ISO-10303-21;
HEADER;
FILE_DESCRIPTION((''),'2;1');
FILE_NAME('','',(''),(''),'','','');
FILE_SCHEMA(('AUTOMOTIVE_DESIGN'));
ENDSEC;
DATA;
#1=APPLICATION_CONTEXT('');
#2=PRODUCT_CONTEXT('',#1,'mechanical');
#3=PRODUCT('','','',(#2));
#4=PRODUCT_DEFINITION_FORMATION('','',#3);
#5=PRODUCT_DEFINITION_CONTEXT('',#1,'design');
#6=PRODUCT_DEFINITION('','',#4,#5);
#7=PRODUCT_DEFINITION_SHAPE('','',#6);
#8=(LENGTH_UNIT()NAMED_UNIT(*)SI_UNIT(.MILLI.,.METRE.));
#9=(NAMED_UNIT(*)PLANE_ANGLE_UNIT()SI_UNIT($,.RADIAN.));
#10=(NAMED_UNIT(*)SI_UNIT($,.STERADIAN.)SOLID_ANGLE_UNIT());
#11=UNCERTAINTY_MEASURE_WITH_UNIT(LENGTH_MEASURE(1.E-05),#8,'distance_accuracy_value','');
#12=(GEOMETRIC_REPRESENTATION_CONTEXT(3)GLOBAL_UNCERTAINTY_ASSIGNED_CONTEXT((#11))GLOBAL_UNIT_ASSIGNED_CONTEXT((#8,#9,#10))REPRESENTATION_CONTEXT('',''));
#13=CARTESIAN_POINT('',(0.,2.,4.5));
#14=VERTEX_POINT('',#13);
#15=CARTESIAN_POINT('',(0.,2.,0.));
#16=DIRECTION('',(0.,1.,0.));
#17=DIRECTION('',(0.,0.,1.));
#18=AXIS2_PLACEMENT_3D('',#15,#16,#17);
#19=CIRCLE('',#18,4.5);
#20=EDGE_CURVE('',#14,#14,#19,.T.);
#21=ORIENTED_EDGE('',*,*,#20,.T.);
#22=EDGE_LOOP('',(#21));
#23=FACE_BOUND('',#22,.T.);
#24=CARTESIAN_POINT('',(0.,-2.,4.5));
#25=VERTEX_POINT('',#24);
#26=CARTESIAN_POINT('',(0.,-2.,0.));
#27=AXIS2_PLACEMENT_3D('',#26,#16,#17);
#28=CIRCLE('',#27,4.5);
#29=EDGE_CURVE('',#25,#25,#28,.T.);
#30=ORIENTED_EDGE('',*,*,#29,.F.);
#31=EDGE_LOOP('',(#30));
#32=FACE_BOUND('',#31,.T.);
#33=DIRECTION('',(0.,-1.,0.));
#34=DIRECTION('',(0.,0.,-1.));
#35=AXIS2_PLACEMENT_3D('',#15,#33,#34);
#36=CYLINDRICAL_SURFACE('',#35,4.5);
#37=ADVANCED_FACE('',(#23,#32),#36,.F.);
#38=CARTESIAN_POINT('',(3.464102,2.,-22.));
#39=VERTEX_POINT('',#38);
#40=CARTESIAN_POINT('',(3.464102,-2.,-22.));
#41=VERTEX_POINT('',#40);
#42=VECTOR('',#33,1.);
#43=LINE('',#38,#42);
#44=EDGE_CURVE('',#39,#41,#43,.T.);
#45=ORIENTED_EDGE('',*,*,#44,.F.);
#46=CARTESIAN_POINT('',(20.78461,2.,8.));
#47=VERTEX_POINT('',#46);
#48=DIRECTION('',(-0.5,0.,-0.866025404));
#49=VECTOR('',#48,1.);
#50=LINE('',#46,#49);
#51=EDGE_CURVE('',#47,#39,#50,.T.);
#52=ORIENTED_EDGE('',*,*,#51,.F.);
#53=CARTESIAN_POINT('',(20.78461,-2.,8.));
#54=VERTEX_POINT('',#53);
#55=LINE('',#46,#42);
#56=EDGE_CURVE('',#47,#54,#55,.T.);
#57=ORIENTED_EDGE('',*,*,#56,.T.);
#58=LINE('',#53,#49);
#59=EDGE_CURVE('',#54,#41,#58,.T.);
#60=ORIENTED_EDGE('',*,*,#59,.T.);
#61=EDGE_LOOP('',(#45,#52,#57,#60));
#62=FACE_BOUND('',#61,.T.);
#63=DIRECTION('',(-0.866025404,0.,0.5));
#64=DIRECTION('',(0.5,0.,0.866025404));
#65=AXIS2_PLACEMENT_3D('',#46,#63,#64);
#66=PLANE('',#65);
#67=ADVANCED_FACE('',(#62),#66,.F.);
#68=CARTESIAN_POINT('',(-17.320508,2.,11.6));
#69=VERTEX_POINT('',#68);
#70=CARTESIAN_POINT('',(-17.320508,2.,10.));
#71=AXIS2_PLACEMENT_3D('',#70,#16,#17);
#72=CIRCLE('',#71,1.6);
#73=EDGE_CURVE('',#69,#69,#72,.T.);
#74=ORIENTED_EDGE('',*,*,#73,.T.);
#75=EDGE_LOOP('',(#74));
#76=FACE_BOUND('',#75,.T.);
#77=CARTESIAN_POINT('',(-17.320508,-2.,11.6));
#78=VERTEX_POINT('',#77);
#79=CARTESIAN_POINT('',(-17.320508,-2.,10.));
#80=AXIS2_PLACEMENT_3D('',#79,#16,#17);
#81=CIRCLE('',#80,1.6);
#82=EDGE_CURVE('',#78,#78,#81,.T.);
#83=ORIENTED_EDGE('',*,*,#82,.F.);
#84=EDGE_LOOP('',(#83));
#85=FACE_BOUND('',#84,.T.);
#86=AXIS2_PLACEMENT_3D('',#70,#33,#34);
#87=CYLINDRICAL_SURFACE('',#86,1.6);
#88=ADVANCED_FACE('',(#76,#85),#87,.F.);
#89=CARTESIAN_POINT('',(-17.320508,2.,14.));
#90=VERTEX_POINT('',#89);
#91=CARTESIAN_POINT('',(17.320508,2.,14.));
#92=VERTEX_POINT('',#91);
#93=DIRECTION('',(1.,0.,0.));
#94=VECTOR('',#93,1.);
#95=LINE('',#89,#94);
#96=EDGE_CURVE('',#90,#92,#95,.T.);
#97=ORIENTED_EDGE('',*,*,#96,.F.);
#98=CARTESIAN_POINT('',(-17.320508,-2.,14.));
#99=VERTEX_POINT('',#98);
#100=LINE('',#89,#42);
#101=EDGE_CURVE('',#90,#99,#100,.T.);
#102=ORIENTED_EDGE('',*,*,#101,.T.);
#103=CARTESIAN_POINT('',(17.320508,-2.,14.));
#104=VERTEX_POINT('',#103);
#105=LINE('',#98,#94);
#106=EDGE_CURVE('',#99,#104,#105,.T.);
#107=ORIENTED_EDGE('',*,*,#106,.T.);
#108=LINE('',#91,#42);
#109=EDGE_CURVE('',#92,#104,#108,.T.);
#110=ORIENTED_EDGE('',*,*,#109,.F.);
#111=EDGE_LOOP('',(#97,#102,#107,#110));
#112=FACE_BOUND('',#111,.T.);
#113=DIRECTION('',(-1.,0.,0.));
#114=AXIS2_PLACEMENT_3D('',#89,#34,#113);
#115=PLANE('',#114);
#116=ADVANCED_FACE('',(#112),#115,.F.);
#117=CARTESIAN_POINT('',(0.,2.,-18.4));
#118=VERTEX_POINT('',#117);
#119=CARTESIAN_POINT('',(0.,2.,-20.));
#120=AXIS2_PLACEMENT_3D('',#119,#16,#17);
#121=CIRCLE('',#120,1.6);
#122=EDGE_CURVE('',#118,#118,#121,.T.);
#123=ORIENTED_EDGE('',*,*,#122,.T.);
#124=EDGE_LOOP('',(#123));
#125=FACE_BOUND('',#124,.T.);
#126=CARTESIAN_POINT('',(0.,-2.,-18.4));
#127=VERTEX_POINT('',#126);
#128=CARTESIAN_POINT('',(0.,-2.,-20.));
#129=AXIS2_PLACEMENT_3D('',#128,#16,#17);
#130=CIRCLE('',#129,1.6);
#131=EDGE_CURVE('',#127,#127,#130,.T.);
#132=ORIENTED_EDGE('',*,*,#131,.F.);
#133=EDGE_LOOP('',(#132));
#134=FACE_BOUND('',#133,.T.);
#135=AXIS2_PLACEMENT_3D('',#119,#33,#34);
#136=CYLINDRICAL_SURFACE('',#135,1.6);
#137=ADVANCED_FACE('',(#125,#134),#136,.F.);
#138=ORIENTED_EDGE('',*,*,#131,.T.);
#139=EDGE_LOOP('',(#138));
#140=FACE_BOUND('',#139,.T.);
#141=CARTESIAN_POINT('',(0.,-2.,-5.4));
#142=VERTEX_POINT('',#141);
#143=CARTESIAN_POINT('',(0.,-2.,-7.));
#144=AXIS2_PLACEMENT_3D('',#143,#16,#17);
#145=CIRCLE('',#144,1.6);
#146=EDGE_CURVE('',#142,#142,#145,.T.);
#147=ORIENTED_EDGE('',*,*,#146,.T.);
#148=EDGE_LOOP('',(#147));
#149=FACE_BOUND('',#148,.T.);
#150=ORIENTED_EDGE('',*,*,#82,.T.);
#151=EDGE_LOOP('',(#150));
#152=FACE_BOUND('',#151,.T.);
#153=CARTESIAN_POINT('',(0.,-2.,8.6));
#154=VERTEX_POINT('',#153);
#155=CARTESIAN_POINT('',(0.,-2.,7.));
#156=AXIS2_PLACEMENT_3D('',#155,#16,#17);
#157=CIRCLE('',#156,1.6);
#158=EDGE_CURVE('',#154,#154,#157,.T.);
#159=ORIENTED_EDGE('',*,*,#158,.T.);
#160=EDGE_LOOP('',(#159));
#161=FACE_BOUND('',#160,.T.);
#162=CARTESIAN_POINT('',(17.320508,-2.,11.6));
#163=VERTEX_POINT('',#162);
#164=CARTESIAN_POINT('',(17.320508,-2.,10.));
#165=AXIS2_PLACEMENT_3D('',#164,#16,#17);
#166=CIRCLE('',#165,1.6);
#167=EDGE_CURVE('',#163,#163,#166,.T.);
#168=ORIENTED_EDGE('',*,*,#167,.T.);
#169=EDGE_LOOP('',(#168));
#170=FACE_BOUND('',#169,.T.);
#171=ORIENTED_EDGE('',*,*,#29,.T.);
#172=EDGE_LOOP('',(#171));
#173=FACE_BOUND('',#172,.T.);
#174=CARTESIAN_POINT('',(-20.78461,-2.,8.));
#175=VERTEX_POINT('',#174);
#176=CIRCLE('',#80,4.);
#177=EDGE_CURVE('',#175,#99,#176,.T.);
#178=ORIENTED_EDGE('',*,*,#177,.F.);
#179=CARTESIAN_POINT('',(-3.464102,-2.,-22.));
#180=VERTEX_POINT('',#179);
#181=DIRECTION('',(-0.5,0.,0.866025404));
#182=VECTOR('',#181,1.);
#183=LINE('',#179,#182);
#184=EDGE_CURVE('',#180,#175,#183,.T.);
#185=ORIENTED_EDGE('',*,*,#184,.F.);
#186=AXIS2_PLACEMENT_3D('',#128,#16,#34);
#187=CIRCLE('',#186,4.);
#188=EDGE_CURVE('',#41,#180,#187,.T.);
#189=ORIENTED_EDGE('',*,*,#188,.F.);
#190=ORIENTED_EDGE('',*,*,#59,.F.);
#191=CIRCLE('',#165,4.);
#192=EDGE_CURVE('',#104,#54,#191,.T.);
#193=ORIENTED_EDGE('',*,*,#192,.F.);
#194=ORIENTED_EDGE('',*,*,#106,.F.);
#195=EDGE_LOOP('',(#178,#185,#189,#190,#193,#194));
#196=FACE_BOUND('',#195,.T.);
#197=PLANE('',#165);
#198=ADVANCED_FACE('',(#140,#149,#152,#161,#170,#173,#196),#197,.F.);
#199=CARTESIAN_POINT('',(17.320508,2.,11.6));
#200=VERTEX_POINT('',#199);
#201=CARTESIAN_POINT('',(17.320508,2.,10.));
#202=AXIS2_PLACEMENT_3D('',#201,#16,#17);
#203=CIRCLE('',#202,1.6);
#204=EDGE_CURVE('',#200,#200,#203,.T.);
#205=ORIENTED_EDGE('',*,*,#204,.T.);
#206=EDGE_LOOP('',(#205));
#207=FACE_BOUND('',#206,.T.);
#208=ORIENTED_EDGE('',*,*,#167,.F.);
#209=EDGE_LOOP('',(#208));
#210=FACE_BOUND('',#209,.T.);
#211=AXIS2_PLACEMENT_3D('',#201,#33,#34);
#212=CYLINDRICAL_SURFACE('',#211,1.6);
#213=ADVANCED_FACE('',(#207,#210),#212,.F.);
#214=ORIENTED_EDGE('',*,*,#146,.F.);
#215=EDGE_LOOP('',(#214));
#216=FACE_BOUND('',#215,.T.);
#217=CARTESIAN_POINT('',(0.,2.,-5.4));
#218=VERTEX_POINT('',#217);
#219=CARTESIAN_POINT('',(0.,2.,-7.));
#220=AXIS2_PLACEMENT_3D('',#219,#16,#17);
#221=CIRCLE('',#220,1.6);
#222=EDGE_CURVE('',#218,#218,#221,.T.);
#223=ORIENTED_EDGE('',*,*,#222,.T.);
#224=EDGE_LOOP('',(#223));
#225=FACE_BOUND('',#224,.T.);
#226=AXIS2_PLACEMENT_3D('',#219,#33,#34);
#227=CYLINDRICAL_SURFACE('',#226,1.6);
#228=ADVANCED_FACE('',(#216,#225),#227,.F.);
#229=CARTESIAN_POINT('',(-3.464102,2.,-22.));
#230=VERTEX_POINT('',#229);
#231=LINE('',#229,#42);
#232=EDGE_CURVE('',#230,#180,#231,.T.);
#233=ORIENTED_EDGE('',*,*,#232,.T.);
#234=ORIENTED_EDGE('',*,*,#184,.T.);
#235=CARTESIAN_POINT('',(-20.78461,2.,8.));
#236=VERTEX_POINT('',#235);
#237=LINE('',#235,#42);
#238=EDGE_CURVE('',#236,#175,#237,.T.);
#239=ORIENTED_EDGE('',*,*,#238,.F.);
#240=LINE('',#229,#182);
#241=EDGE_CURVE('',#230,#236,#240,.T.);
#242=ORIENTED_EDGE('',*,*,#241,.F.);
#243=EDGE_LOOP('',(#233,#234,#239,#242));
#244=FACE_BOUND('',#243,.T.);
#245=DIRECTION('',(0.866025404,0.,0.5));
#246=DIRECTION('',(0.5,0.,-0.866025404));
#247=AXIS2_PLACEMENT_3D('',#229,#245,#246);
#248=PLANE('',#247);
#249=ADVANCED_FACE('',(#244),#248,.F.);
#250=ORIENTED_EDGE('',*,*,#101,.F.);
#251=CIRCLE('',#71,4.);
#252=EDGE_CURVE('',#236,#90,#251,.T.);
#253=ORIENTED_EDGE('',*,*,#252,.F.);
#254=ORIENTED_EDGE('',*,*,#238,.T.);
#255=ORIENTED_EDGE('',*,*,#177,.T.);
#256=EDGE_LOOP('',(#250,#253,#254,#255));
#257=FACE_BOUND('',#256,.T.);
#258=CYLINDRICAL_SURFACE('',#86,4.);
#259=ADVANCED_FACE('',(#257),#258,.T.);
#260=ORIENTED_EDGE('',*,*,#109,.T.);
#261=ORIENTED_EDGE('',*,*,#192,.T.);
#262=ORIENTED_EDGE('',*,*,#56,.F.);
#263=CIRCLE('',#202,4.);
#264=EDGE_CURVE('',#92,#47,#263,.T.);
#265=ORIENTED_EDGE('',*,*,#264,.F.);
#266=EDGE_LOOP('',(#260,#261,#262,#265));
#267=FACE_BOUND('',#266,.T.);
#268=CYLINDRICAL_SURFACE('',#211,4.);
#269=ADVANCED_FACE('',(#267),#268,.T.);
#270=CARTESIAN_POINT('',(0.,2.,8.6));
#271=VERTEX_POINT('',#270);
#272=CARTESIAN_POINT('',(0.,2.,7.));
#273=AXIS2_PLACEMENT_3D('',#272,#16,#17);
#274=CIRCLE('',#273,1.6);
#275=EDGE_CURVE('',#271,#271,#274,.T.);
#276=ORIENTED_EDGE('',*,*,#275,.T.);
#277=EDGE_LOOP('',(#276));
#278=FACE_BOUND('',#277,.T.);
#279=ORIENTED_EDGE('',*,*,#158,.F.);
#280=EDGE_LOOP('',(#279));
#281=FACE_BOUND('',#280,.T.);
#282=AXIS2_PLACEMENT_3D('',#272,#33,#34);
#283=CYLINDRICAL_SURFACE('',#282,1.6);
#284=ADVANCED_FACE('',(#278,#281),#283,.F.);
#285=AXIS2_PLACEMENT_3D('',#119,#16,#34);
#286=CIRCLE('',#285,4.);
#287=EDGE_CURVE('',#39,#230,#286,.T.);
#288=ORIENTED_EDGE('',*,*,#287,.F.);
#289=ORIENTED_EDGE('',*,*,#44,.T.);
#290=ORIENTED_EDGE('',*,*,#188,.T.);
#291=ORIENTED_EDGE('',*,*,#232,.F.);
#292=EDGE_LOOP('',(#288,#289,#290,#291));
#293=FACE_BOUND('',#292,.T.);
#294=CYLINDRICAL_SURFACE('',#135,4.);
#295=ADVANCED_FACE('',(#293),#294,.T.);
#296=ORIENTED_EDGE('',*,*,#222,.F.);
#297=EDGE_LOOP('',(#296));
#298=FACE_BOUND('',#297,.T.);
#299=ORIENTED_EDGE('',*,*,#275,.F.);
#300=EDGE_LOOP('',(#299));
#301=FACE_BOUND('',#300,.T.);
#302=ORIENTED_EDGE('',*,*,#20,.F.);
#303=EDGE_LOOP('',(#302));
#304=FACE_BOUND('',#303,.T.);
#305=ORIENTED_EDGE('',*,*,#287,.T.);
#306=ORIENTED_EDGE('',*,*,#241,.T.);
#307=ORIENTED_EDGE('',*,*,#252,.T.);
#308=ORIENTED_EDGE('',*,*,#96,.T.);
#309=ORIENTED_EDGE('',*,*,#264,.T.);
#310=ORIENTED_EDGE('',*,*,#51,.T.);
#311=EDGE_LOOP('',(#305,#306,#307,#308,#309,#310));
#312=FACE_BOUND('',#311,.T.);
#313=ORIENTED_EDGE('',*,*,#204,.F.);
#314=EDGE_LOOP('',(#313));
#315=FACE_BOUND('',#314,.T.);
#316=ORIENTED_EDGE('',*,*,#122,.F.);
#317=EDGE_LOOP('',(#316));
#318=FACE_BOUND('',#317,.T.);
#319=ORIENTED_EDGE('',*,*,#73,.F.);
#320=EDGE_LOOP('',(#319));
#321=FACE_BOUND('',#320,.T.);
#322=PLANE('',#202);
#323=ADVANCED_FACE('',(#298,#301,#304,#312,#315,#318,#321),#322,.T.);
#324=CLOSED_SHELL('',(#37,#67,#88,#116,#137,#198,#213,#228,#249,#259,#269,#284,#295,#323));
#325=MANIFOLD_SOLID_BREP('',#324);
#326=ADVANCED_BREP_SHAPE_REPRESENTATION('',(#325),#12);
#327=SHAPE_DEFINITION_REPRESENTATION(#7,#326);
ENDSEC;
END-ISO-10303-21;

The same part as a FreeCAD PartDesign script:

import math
import FreeCAD as App
import Part
import Sketcher

V = App.Vector
Q = App.Units.Quantity

doc = App.newDocument("Part")
body = doc.addObject("PartDesign::Body", "Body")

sketch1 = body.newObject("Sketcher::SketchObject", "Sketch")
sketch1.AttachmentSupport = (doc.getObject("XZ_Plane"), [""])
sketch1.MapMode = "FlatFace"
sketch1.addGeometry([
    Part.LineSegment(V(-3.464102, -22, 0), V(-20.78461, 8, 0)),
    Part.ArcOfCircle(Part.Circle(V(-17.320508, 10, 0), V(0, 0, 1), 4), math.radians(90), math.radians(210)),
    Part.LineSegment(V(-17.320508, 14, 0), V(17.320508, 14, 0)),
    Part.ArcOfCircle(Part.Circle(V(17.320508, 10, 0), V(0, 0, 1), 4), math.radians(-30), math.radians(90)),
    Part.LineSegment(V(20.78461, 8, 0), V(3.464102, -22, 0)),
    Part.ArcOfCircle(Part.Circle(V(0, -20, 0), V(0, 0, 1), 4), math.radians(-150), math.radians(-30)),
    Part.Circle(V(-17.320508, 10, 0), V(0, 0, 1), 1.6),
    Part.Circle(V(0, 7, 0), V(0, 0, 1), 1.6),
    Part.Circle(V(17.320508, 10, 0), V(0, 0, 1), 1.6),
    Part.Circle(V(0, 0, 0), V(0, 0, 1), 4.5),
    Part.Circle(V(0, -7, 0), V(0, 0, 1), 1.6),
    Part.Circle(V(0, -20, 0), V(0, 0, 1), 1.6),
], False)
sketch1.addConstraint([
    Sketcher.Constraint("Tangent", 0, 2, 1, 2),
    Sketcher.Constraint("Tangent", 1, 1, 2, 1),
    Sketcher.Constraint("Tangent", 2, 2, 3, 2),
    Sketcher.Constraint("Tangent", 3, 1, 4, 1),
    Sketcher.Constraint("Tangent", 4, 2, 5, 2),
    Sketcher.Constraint("Tangent", 5, 1, 0, 1),
    Sketcher.Constraint("Horizontal", 2),
    Sketcher.Constraint("Coincident", 9, 3, -1, 1),
    Sketcher.Constraint("Coincident", 6, 3, 1, 3),
    Sketcher.Constraint("Coincident", 8, 3, 3, 3),
    Sketcher.Constraint("Coincident", 11, 3, 5, 3),
    Sketcher.Constraint("Equal", 1, 3),
    Sketcher.Constraint("Equal", 3, 5),
    Sketcher.Constraint("Equal", 6, 7),
    Sketcher.Constraint("Equal", 7, 8),
    Sketcher.Constraint("Equal", 8, 10),
    Sketcher.Constraint("Equal", 10, 11),
    Sketcher.Constraint("Symmetric", 7, 3, 10, 3, -1, 1),
    Sketcher.Constraint("Symmetric", 0, 2, 3, 1, -2),
    Sketcher.Constraint("PointOnObject", 7, 3, -2),
    Sketcher.Constraint("Diameter", 9, 9.0),
    Sketcher.Constraint("Radius", 1, 4.0),
    Sketcher.Constraint("Diameter", 6, 3.2),
    Sketcher.Constraint("Angle", 0, Q("120 deg")),
    Sketcher.Constraint("DistanceY", -1, 1, 1, 3, 10.0),
    Sketcher.Constraint("DistanceY", 5, 3, -1, 1, 20.0),
    Sketcher.Constraint("DistanceY", -1, 1, 7, 3, 7.0),
])
pad1 = body.newObject("PartDesign::Pad", "Pad")
pad1.Profile = sketch1
pad1.Length = 4
pad1.Midplane = True

doc.recompute()
